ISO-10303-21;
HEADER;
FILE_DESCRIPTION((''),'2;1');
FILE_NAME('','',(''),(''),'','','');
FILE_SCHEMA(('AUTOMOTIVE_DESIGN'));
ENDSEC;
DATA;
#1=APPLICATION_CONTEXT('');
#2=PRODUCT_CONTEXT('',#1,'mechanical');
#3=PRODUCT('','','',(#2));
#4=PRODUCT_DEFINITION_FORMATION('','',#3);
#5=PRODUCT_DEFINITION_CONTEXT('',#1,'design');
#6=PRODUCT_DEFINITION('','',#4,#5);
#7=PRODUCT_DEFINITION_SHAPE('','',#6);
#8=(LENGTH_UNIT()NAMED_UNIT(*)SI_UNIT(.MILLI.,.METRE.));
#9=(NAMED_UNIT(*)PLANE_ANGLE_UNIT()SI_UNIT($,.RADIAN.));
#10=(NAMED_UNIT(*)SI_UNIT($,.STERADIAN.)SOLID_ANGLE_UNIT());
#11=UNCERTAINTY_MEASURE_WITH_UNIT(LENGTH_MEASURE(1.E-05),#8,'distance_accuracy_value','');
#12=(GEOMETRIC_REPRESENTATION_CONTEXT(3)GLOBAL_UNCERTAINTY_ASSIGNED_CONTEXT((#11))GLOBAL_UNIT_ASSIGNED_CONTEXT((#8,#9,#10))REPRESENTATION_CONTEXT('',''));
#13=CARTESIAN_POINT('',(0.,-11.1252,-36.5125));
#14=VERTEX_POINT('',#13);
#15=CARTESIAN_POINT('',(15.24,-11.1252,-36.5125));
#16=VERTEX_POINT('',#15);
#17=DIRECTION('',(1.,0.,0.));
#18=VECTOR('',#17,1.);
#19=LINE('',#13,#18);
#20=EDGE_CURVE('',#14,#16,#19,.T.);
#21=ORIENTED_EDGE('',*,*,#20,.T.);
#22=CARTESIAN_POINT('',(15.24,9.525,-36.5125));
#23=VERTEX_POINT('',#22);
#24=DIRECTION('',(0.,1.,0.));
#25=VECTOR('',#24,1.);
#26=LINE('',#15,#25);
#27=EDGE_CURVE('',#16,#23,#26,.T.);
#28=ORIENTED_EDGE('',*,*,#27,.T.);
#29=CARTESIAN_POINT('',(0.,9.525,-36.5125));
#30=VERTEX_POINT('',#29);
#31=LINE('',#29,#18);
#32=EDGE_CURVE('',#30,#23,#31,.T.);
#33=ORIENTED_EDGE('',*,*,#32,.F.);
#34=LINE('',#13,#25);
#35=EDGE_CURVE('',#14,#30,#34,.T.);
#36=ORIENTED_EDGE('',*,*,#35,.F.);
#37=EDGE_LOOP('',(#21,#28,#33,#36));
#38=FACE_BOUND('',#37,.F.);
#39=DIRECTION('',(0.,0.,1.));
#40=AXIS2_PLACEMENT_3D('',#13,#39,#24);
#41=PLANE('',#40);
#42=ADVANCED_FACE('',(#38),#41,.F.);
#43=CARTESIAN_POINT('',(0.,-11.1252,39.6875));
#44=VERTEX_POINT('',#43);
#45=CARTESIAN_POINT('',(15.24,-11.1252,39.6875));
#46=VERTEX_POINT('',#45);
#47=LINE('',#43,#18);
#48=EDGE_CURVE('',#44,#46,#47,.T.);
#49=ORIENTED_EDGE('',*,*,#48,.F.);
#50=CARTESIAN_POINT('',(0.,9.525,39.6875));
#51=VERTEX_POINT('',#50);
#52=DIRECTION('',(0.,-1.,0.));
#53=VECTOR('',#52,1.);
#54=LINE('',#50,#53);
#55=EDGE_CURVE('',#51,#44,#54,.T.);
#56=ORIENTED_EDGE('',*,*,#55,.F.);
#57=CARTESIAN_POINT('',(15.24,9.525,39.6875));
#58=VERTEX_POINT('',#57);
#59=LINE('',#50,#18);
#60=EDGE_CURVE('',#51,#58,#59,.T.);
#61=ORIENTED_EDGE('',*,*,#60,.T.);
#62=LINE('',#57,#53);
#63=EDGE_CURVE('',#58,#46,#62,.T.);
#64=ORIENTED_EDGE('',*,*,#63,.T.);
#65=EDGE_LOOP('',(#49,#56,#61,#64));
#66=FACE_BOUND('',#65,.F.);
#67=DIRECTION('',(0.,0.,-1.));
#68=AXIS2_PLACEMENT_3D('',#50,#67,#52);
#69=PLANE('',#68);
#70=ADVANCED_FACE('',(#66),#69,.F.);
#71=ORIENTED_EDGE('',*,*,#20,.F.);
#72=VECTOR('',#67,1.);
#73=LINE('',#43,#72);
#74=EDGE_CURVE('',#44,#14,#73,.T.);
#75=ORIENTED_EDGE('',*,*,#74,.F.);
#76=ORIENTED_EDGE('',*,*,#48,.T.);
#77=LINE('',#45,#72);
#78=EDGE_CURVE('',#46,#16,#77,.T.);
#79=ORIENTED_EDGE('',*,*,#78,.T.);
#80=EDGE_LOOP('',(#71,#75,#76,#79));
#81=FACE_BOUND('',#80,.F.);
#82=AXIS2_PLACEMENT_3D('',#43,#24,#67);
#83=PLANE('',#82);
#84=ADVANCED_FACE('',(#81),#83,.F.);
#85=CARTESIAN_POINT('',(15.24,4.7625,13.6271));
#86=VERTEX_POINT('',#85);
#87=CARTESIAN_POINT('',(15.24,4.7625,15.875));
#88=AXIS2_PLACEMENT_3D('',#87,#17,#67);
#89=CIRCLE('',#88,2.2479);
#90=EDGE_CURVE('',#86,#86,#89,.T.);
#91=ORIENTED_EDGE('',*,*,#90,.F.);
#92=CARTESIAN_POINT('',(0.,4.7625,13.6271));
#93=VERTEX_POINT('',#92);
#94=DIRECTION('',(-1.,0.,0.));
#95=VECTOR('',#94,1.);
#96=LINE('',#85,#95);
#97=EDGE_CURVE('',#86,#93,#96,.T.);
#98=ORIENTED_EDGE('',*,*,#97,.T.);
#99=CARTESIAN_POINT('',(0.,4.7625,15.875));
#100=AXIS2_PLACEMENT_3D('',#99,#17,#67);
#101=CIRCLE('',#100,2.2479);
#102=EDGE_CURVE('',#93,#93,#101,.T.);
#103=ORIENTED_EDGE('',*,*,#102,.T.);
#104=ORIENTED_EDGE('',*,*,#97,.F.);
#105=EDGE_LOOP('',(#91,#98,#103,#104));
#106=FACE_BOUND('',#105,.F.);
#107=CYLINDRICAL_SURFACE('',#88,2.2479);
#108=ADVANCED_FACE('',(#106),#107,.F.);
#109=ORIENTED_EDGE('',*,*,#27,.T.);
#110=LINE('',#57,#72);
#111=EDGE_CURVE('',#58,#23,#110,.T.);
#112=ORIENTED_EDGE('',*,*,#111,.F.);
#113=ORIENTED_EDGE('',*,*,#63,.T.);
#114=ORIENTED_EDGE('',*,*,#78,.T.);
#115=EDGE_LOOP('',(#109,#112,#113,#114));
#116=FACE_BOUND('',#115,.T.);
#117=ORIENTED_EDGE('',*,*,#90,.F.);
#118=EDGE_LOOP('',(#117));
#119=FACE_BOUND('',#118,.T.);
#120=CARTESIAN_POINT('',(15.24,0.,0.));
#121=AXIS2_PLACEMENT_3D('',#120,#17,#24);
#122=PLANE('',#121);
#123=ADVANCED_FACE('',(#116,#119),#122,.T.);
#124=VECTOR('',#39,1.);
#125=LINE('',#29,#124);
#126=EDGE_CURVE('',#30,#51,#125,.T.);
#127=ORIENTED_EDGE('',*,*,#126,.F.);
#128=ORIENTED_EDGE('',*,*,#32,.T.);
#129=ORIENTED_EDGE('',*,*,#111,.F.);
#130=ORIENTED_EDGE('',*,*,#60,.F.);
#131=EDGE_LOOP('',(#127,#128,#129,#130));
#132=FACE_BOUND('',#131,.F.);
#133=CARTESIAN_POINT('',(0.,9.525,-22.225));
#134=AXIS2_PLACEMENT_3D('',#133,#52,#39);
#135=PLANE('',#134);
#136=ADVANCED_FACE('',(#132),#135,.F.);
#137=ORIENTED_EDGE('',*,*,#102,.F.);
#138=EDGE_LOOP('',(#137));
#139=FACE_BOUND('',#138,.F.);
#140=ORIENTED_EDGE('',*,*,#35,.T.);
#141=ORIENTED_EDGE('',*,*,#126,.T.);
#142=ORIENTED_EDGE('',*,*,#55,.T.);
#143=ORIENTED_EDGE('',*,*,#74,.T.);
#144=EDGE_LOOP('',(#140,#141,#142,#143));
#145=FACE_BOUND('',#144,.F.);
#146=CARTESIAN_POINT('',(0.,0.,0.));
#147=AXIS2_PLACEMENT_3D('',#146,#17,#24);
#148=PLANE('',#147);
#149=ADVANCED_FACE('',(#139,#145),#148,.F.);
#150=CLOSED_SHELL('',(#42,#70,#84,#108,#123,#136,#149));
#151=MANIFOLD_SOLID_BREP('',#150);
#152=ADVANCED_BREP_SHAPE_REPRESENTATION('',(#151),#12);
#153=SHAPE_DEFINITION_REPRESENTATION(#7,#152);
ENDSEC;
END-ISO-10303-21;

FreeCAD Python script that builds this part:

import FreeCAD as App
import Part
import Sketcher
from FreeCAD import Vector
Q = App.Units.Quantity

doc = App.newDocument("Part")
params = doc.addObject("Spreadsheet::Sheet", "Params")
for row, (alias, value) in enumerate([
    ("sketch1_height", "3 in"),
    ("sketch1_width", "0.813 in"),
    ("pad1_length", "0.6 in"),
    ("sketch2_diameter", "0.177 in"),
    ("pocket1_length", "2 in"),
], start=1):
    params.set(f"A{row}", alias)
    params.set(f"B{row}", "=" + value)
    params.setAlias(f"B{row}", alias)

body = doc.addObject("PartDesign::Body", "Body")

# Sketch on YZ plane
sketch1 = doc.addObject("Sketcher::SketchObject", "Sketch")
body.addObject(sketch1)
sketch1.AttachmentSupport = (doc.YZ_Plane, [""])
sketch1.MapMode = "FlatFace"
sketch1.addGeometry([
    Part.LineSegment(Vector(10, -37, 0), Vector(10, 40, 0)),
    Part.LineSegment(Vector(10, 40, 0), Vector(-11, 40, 0)),
    Part.LineSegment(Vector(-11, 40, 0), Vector(-11, -37, 0)),
    Part.LineSegment(Vector(-11, -37, 0), Vector(10, -37, 0)),
], False)
sketch1.addConstraint([
    Sketcher.Constraint("Coincident", 0, 2, 1, 1),
    Sketcher.Constraint("Coincident", 1, 2, 2, 1),
    Sketcher.Constraint("Coincident", 2, 2, 3, 1),
    Sketcher.Constraint("Coincident", 3, 2, 0, 1),
    Sketcher.Constraint("Vertical", 0),
    Sketcher.Constraint("Horizontal", 1),
    Sketcher.Constraint("Vertical", 2),
    Sketcher.Constraint("Horizontal", 3),
    Sketcher.Constraint("DistanceY", 0, 1, 0, 2, Q("3 in")),
    Sketcher.Constraint("DistanceX", 1, 2, 1, 1, Q("0.813 in")),
    Sketcher.Constraint("DistanceX", -1, 1, 0, 2, Q("0.375 in")),
    Sketcher.Constraint("DistanceY", -1, 1, 0, 2, Q("1.5625 in")),
])
sketch1.setExpression("Constraints[8]", "Params.sketch1_height")
sketch1.setExpression("Constraints[9]", "Params.sketch1_width")
pad1 = doc.addObject("PartDesign::Pad", "Pad")
body.addObject(pad1)
pad1.Profile = sketch1
pad1.setExpression("Length", "Params.pad1_length")

# Sketch on YZ plane
sketch2 = doc.addObject("Sketcher::SketchObject", "Sketch001")
body.addObject(sketch2)
sketch2.AttachmentSupport = (doc.YZ_Plane, [""])
sketch2.MapMode = "FlatFace"
sketch2.AttachmentOffset = App.Placement(Vector(0, 0, 0.6 * 25.4), App.Rotation())
sketch2.addGeometry(Part.Circle(Vector(4.8, 15.9, 0), Vector(0, 0, 1), 2.2), False)
sketch2.addConstraint([
    Sketcher.Constraint("Diameter", 0, Q("0.177 in")),
    Sketcher.Constraint("DistanceX", -1, 1, 0, 3, Q("0.1875 in")),
    Sketcher.Constraint("DistanceY", -1, 1, 0, 3, Q("0.625 in")),
])
sketch2.setExpression("Constraints[0]", "Params.sketch2_diameter")
pocket1 = doc.addObject("PartDesign::Pocket", "Pocket")
body.addObject(pocket1)
pocket1.Profile = sketch2
pocket1.setExpression("Length", "Params.pocket1_length")
pocket1.Midplane = True

doc.recompute()
